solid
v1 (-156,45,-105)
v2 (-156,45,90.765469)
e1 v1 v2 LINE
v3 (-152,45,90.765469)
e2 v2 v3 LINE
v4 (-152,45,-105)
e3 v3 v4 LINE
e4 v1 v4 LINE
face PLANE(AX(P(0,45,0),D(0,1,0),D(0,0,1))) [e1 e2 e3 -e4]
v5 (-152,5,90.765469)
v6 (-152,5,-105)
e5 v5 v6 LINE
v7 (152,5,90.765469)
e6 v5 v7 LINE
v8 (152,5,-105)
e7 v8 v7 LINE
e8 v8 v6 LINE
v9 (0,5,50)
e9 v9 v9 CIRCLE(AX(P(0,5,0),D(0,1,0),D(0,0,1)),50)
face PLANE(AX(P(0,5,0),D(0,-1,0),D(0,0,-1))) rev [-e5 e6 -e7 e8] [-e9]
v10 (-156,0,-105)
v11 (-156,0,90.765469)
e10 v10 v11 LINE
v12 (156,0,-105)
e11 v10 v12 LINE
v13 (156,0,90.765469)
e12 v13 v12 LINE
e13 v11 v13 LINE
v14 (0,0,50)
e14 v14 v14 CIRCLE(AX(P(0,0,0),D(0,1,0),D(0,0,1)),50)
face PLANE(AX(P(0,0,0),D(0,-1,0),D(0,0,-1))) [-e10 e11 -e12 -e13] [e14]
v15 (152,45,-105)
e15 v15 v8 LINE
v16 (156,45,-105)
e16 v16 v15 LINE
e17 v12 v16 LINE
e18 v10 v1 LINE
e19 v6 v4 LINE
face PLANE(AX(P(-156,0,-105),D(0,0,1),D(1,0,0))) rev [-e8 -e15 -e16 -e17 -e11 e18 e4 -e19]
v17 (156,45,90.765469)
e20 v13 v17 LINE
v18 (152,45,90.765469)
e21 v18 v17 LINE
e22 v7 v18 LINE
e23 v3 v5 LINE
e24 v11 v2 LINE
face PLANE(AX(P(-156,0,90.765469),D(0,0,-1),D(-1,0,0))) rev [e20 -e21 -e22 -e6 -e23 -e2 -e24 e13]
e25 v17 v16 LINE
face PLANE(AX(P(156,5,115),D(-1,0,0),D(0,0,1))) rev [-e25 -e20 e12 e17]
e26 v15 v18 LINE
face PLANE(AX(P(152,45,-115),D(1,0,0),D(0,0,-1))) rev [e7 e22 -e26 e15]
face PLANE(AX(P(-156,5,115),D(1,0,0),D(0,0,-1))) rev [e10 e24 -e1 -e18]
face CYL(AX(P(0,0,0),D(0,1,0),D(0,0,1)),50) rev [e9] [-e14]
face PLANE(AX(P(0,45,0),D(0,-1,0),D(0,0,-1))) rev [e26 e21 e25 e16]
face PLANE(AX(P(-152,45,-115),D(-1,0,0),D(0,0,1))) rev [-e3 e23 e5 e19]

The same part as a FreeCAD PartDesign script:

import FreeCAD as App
import Part
import Sketcher
from FreeCAD import Vector


def add_polygon(sketch, points):
    """Adds a closed chain of lines whose ends are joined by coincident constraints."""
    first, n = sketch.GeometryCount, len(points)
    for a, b in zip(points, points[1:] + points[:1]):
        sketch.addGeometry(Part.LineSegment(App.Vector(*a, 0), App.Vector(*b, 0)), False)
    for i in range(n):
        sketch.addConstraint(Sketcher.Constraint("Coincident", first + i, 2, first + (i + 1) % n, 1))

doc = App.newDocument("Part")
params = doc.addObject("Spreadsheet::Sheet", "Params")
for row, (alias, value) in enumerate([
    ("sketch1_width", "312 mm"),
    ("sketch1_height", "230 mm"),
    ("pad1_length", "5 mm"),
    ("sketch2_width", "4 mm"),
    ("sketch2_height", "230 mm"),
    ("pad2_length", "40 mm"),
    ("sketch3_diameter", "100 mm"),
    ("sketch4_width", "312 mm"),
    ("sketch4_height", "10 mm"),
    ("sketch5_width", "45 mm"),
], start=1):
    params.set(f"A{row}", alias)
    params.set(f"B{row}", "=" + value)
    params.setAlias(f"B{row}", alias)

body = doc.addObject("PartDesign::Body", "Body")

# Sketch on XZ plane
sketch1 = doc.addObject("Sketcher::SketchObject", "Sketch")
body.addObject(sketch1)
sketch1.AttachmentSupport = (doc.XZ_Plane, [""])
sketch1.MapMode = "FlatFace"
add_polygon(sketch1, [(-156, -115), (-156, 115), (156, 115), (156, -115)])  # lines 0-3
sketch1.addConstraint(Sketcher.Constraint("Vertical", 0))
sketch1.addConstraint(Sketcher.Constraint("Horizontal", 1))
sketch1.addConstraint(Sketcher.Constraint("Vertical", 2))
sketch1.addConstraint(Sketcher.Constraint("Horizontal", 3))
sketch1.addConstraint(Sketcher.Constraint("Symmetric", 0, 2, 2, 2, -1, 1))
sketch1.addConstraint(Sketcher.Constraint("DistanceX", 1, 1, 1, 2, 312.0))
sketch1.addConstraint(Sketcher.Constraint("DistanceY", 0, 1, 0, 2, 230.0))
sketch1.setExpression("Constraints[9]", "Params.sketch1_width")
sketch1.setExpression("Constraints[10]", "Params.sketch1_height")
pad1 = doc.addObject("PartDesign::Pad", "Pad")
body.addObject(pad1)
pad1.Profile = sketch1
pad1.setExpression("Length", "Params.pad1_length")
pad1.Reversed = True

# Sketch on XZ plane
sketch2 = doc.addObject("Sketcher::SketchObject", "Sketch001")
body.addObject(sketch2)
sketch2.AttachmentSupport = (doc.XZ_Plane, [""])
sketch2.MapMode = "FlatFace"
sketch2.AttachmentOffset = App.Placement(Vector(0, 0, -5), App.Rotation())
add_polygon(sketch2, [(-156, -115), (-156, 115), (-152, 115), (-152, -115)])  # lines 0-3
add_polygon(sketch2, [(152, -115), (152, 115), (156, 115), (156, -115)])  # lines 4-7
sketch2.addConstraint(Sketcher.Constraint("Vertical", 0))
sketch2.addConstraint(Sketcher.Constraint("Horizontal", 1))
sketch2.addConstraint(Sketcher.Constraint("Vertical", 2))
sketch2.addConstraint(Sketcher.Constraint("Horizontal", 3))
sketch2.addConstraint(Sketcher.Constraint("Vertical", 4))
sketch2.addConstraint(Sketcher.Constraint("Horizontal", 5))
sketch2.addConstraint(Sketcher.Constraint("Vertical", 6))
sketch2.addConstraint(Sketcher.Constraint("Horizontal", 7))
sketch2.addConstraint(Sketcher.Constraint("Symmetric", 2, 2, 4, 2, -1, 1))
sketch2.addConstraint(Sketcher.Constraint("Symmetric", 0, 2, 6, 2, -1, 1))
sketch2.addConstraint(Sketcher.Constraint("Horizontal", 1, 2, 4, 2))
sketch2.addConstraint(Sketcher.Constraint("DistanceX", 1, 1, 1, 2, 4.0))
sketch2.addConstraint(Sketcher.Constraint("DistanceY", 0, 1, 0, 2, 230.0))
sketch2.addConstraint(Sketcher.Constraint("DistanceX", 0, 2, -1, 1, 156.0))
sketch2.setExpression("Constraints[19]", "Params.sketch2_width")
sketch2.setExpression("Constraints[20]", "Params.sketch2_height")
pad2 = doc.addObject("PartDesign::Pad", "Pad001")
body.addObject(pad2)
pad2.Profile = sketch2
pad2.setExpression("Length", "Params.pad2_length")
pad2.Reversed = True

# Sketch on XZ plane
sketch3 = doc.addObject("Sketcher::SketchObject", "Sketch002")
body.addObject(sketch3)
sketch3.AttachmentSupport = (doc.XZ_Plane, [""])
sketch3.MapMode = "FlatFace"
sketch3.AttachmentOffset = App.Placement(Vector(0, 0, -5), App.Rotation())
sketch3.addGeometry(Part.Circle(Vector(0, 0, 0), Vector(0, 0, 1), 50), False)
sketch3.addConstraint(Sketcher.Constraint("Coincident", 0, 3, -1, 1))
sketch3.addConstraint(Sketcher.Constraint("Diameter", 0, 100.0))
sketch3.setExpression("Constraints[1]", "Params.sketch3_diameter")
pocket1 = doc.addObject("PartDesign::Pocket", "Pocket")
body.addObject(pocket1)
pocket1.Profile = sketch3
pocket1.Type = "ThroughAll"
pocket1.Reversed = True

# Sketch on XZ plane
sketch4 = doc.addObject("Sketcher::SketchObject", "Sketch003")
body.addObject(sketch4)
sketch4.AttachmentSupport = (doc.XZ_Plane, [""])
sketch4.MapMode = "FlatFace"
sketch4.AttachmentOffset = App.Placement(Vector(0, 0, -5), App.Rotation())
add_polygon(sketch4, [(-156, -115), (-156, -105), (156, -105), (156, -115)])  # lines 0-3
sketch4.addConstraint(Sketcher.Constraint("Vertical", 0))
sketch4.addConstraint(Sketcher.Constraint("Horizontal", 1))
sketch4.addConstraint(Sketcher.Constraint("Vertical", 2))
sketch4.addConstraint(Sketcher.Constraint("Horizontal", 3))
sketch4.addConstraint(Sketcher.Constraint("DistanceX", 1, 1, 1, 2, 312.0))
sketch4.addConstraint(Sketcher.Constraint("DistanceY", 0, 1, 0, 2, 10.0))
sketch4.addConstraint(Sketcher.Constraint("DistanceX", 0, 2, -1, 1, 156.0))
sketch4.addConstraint(Sketcher.Constraint("DistanceY", 0, 2, -1, 1, 105.0))
sketch4.setExpression("Constraints[8]", "Params.sketch4_width")
sketch4.setExpression("Constraints[9]", "Params.sketch4_height")
pocket2 = doc.addObject("PartDesign::Pocket", "Pocket001")
body.addObject(pocket2)
pocket2.Profile = sketch4
pocket2.Type = "ThroughAll"
pocket2.Midplane = True

# Sketch on YZ plane
sketch5 = doc.addObject("Sketcher::SketchObject", "Sketch004")
body.addObject(sketch5)
sketch5.AttachmentSupport = (doc.YZ_Plane, [""])
sketch5.MapMode = "FlatFace"
sketch5.AttachmentOffset = App.Placement(Vector(0, 0, 156), App.Rotation())
add_polygon(sketch5, [(45, 115), (0, 115), (0, 91), (45, 91)])  # lines 0-3
sketch5.addConstraint(Sketcher.Constraint("Horizontal", 0))
sketch5.addConstraint(Sketcher.Constraint("Vertical", 1))
sketch5.addConstraint(Sketcher.Constraint("Horizontal", 2))
sketch5.addConstraint(Sketcher.Constraint("Vertical", 3))
sketch5.addConstraint(Sketcher.Constraint("PointOnObject", 0, 2, -2))
sketch5.addConstraint(Sketcher.Constraint("DistanceX", 0, 2, 0, 1, 45.0))
sketch5.addConstraint(Sketcher.Constraint("DistanceY", -1, 1, 0, 2, 115.0))
sketch5.addConstraint(Sketcher.Constraint("DistanceY", 1, 2, 1, 1, 24.234531))
sketch5.setExpression("Constraints[9]", "Params.sketch5_width")
pocket3 = doc.addObject("PartDesign::Pocket", "Pocket002")
body.addObject(pocket3)
pocket3.Profile = sketch5
pocket3.Type = "ThroughAll"

doc.recompute()
